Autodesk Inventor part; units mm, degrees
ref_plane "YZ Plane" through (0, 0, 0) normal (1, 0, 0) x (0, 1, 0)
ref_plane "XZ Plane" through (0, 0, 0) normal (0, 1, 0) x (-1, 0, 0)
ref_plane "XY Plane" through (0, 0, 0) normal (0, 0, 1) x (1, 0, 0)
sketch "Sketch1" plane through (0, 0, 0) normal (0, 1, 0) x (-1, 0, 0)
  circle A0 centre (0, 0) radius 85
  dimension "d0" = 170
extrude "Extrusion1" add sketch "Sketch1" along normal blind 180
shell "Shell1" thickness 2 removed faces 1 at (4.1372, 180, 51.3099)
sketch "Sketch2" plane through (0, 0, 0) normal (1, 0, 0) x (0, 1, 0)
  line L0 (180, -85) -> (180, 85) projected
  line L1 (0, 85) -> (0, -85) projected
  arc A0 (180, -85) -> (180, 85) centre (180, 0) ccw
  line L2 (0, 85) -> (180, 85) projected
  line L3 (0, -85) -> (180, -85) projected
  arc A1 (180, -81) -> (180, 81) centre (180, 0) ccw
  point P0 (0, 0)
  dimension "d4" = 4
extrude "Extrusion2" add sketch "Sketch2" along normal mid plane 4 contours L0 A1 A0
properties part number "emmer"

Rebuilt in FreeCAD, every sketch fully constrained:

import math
import FreeCAD as App
import Part
import Sketcher

V = App.Vector


def faces_at(feature, points):
    """Names of the faces that lie closest to the given points."""
    faces = feature.Shape.Faces
    near = lambda p: min(range(len(faces)), key=lambda i: faces[i].distToShape(Part.Vertex(*p))[0])
    return sorted({f"Face{near(p) + 1}" for p in points})

doc = App.newDocument("Part")
params = doc.addObject("Spreadsheet::Sheet", "Params")
for row, (alias, value) in enumerate([
    ("sketch1_diameter", "170 mm"),
    ("pad1_length", "180 mm"),
    ("thickness_wall", "2 mm"),
    ("sketch2_height", "4 mm"),
    ("sketch2_radius", "85 mm"),
    ("pad2_length", "4 mm"),
], start=1):
    params.set(f"A{row}", alias)
    params.set(f"B{row}", "=" + value)
    params.setAlias(f"B{row}", alias)

body = doc.addObject("PartDesign::Body", "Body")

sketch1 = body.newObject("Sketcher::SketchObject", "Sketch")
sketch1.AttachmentSupport = (doc.getObject("XZ_Plane"), [""])
sketch1.MapMode = "FlatFace"
sketch1.addGeometry(Part.Circle(V(0, 0, 0), V(0, 0, 1), 85), False)
sketch1.addConstraint([
    Sketcher.Constraint("Coincident", 0, 3, -1, 1),
    Sketcher.Constraint("Diameter", 0, 170.0),
])
sketch1.setExpression("Constraints[1]", "Params.sketch1_diameter")
pad1 = body.newObject("PartDesign::Pad", "Pad")
pad1.Profile = sketch1
pad1.setExpression("Length", "Params.pad1_length")
pad1.Reversed = True
doc.recompute()

thickness = body.newObject("PartDesign::Thickness", "Thickness")
thickness.Base = (pad1, faces_at(pad1, [(4.137, 180, 51.31)]))
thickness.setExpression("Value", "Params.thickness_wall")
thickness.Reversed = True
thickness.Join = "Intersection"

sketch2 = body.newObject("Sketcher::SketchObject", "Sketch001")
sketch2.AttachmentSupport = (doc.getObject("YZ_Plane"), [""])
sketch2.MapMode = "FlatFace"
sketch2.addGeometry([
    Part.LineSegment(V(180, -81, 0), V(180, -85, 0)),
    Part.ArcOfCircle(Part.Circle(V(180, 0, 0), V(0, 0, 1), 85), math.radians(-90), math.radians(90)),
    Part.LineSegment(V(180, 85, 0), V(180, 81, 0)),
    Part.ArcOfCircle(Part.Circle(V(180, 0, 0), V(0, 0, 1), 81), math.radians(-90), math.radians(90)),
], False)
sketch2.addConstraint([
    Sketcher.Constraint("Coincident", 0, 2, 1, 1),
    Sketcher.Constraint("Coincident", 1, 2, 2, 1),
    Sketcher.Constraint("Coincident", 2, 2, 3, 2),
    Sketcher.Constraint("Coincident", 3, 1, 0, 1),
    Sketcher.Constraint("Vertical", 0),
    Sketcher.Constraint("Vertical", 2),
    Sketcher.Constraint("Coincident", 3, 3, 1, 3),
    Sketcher.Constraint("Symmetric", 0, 2, 1, 2, -1),
    Sketcher.Constraint("Vertical", 3, 3, 0, 2),
    Sketcher.Constraint("DistanceY", 0, 2, 0, 1, 4.0),
    Sketcher.Constraint("Radius", 1, 85.0),
    Sketcher.Constraint("DistanceX", -1, 1, 1, 3, 180.0),
])
sketch2.setExpression("Constraints[9]", "Params.sketch2_height")
sketch2.setExpression("Constraints[10]", "Params.sketch2_radius")
pad2 = body.newObject("PartDesign::Pad", "Pad001")
pad2.Profile = sketch2
pad2.setExpression("Length", "Params.pad2_length")
pad2.Midplane = True

doc.recompute()
